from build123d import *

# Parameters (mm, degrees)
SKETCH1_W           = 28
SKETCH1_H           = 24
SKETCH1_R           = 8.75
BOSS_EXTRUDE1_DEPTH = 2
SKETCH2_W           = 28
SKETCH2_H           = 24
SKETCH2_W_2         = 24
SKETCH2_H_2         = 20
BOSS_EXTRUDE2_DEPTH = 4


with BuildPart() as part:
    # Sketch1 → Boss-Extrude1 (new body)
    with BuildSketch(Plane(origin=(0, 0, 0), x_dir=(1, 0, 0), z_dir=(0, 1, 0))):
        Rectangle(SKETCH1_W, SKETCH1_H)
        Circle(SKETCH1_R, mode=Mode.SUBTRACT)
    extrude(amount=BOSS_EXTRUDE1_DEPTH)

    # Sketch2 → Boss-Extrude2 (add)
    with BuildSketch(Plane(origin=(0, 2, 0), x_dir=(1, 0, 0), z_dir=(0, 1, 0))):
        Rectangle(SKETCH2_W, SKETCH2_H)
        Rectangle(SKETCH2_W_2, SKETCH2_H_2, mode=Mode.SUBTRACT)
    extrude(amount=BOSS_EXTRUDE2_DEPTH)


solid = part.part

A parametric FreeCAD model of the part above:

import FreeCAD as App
import Part
import Sketcher

V = App.Vector


def add_polygon(sketch, points):
    """Adds a closed chain of lines whose ends are joined by coincident constraints."""
    first, n = sketch.GeometryCount, len(points)
    for a, b in zip(points, points[1:] + points[:1]):
        sketch.addGeometry(Part.LineSegment(App.Vector(*a, 0), App.Vector(*b, 0)), False)
    for i in range(n):
        sketch.addConstraint(Sketcher.Constraint("Coincident", first + i, 2, first + (i + 1) % n, 1))

doc = App.newDocument("Part")
body = doc.addObject("PartDesign::Body", "Body")

sketch1 = body.newObject("Sketcher::SketchObject", "Sketch")
sketch1.AttachmentSupport = (doc.getObject("XZ_Plane"), [""])
sketch1.MapMode = "FlatFace"
add_polygon(sketch1, [(-14, -12), (-14, 12), (14, 12), (14, -12)])
sketch1.addGeometry(Part.Circle(V(0, 0, 0), V(0, 0, 1), 9), False)
sketch1.addConstraint([
    Sketcher.Constraint("Vertical", 0),
    Sketcher.Constraint("Horizontal", 1),
    Sketcher.Constraint("Vertical", 2),
    Sketcher.Constraint("Horizontal", 3),
    Sketcher.Constraint("Coincident", 4, 3, -1, 1),
    Sketcher.Constraint("Symmetric", 0, 2, 2, 2, -1, 1),
    Sketcher.Constraint("Diameter", 4, 17.5),
    Sketcher.Constraint("DistanceX", 1, 1, 1, 2, 28.0),
    Sketcher.Constraint("DistanceY", 0, 1, 0, 2, 24.0),
])
pad1 = body.newObject("PartDesign::Pad", "Pad")
pad1.Profile = sketch1
pad1.Length = 2
pad1.Reversed = True

sketch2 = body.newObject("Sketcher::SketchObject", "Sketch001")
sketch2.AttachmentSupport = (doc.getObject("XZ_Plane"), [""])
sketch2.MapMode = "FlatFace"
sketch2.AttachmentOffset = App.Placement(V(0, 0, -2), App.Rotation())
add_polygon(sketch2, [(-14, -12), (-14, 12), (14, 12), (14, -12)])
add_polygon(sketch2, [(12, 10), (-12, 10), (-12, -10), (12, -10)])
sketch2.addConstraint([
    Sketcher.Constraint("Vertical", 0),
    Sketcher.Constraint("Horizontal", 1),
    Sketcher.Constraint("Vertical", 2),
    Sketcher.Constraint("Horizontal", 3),
    Sketcher.Constraint("Horizontal", 4),
    Sketcher.Constraint("Vertical", 5),
    Sketcher.Constraint("Horizontal", 6),
    Sketcher.Constraint("Vertical", 7),
    Sketcher.Constraint("Symmetric", 0, 2, 2, 2, -1, 1),
    Sketcher.Constraint("Symmetric", 4, 2, 6, 2, -1, 1),
    Sketcher.Constraint("Equal", 6, 0),
    Sketcher.Constraint("DistanceX", 1, 1, 1, 2, 28.0),
    Sketcher.Constraint("DistanceX", 4, 2, 4, 1, 24.0),
    Sketcher.Constraint("DistanceY", 5, 2, 5, 1, 20.0),
])
pad2 = body.newObject("PartDesign::Pad", "Pad001")
pad2.Profile = sketch2
pad2.Length = 4
pad2.Reversed = True

doc.recompute()
